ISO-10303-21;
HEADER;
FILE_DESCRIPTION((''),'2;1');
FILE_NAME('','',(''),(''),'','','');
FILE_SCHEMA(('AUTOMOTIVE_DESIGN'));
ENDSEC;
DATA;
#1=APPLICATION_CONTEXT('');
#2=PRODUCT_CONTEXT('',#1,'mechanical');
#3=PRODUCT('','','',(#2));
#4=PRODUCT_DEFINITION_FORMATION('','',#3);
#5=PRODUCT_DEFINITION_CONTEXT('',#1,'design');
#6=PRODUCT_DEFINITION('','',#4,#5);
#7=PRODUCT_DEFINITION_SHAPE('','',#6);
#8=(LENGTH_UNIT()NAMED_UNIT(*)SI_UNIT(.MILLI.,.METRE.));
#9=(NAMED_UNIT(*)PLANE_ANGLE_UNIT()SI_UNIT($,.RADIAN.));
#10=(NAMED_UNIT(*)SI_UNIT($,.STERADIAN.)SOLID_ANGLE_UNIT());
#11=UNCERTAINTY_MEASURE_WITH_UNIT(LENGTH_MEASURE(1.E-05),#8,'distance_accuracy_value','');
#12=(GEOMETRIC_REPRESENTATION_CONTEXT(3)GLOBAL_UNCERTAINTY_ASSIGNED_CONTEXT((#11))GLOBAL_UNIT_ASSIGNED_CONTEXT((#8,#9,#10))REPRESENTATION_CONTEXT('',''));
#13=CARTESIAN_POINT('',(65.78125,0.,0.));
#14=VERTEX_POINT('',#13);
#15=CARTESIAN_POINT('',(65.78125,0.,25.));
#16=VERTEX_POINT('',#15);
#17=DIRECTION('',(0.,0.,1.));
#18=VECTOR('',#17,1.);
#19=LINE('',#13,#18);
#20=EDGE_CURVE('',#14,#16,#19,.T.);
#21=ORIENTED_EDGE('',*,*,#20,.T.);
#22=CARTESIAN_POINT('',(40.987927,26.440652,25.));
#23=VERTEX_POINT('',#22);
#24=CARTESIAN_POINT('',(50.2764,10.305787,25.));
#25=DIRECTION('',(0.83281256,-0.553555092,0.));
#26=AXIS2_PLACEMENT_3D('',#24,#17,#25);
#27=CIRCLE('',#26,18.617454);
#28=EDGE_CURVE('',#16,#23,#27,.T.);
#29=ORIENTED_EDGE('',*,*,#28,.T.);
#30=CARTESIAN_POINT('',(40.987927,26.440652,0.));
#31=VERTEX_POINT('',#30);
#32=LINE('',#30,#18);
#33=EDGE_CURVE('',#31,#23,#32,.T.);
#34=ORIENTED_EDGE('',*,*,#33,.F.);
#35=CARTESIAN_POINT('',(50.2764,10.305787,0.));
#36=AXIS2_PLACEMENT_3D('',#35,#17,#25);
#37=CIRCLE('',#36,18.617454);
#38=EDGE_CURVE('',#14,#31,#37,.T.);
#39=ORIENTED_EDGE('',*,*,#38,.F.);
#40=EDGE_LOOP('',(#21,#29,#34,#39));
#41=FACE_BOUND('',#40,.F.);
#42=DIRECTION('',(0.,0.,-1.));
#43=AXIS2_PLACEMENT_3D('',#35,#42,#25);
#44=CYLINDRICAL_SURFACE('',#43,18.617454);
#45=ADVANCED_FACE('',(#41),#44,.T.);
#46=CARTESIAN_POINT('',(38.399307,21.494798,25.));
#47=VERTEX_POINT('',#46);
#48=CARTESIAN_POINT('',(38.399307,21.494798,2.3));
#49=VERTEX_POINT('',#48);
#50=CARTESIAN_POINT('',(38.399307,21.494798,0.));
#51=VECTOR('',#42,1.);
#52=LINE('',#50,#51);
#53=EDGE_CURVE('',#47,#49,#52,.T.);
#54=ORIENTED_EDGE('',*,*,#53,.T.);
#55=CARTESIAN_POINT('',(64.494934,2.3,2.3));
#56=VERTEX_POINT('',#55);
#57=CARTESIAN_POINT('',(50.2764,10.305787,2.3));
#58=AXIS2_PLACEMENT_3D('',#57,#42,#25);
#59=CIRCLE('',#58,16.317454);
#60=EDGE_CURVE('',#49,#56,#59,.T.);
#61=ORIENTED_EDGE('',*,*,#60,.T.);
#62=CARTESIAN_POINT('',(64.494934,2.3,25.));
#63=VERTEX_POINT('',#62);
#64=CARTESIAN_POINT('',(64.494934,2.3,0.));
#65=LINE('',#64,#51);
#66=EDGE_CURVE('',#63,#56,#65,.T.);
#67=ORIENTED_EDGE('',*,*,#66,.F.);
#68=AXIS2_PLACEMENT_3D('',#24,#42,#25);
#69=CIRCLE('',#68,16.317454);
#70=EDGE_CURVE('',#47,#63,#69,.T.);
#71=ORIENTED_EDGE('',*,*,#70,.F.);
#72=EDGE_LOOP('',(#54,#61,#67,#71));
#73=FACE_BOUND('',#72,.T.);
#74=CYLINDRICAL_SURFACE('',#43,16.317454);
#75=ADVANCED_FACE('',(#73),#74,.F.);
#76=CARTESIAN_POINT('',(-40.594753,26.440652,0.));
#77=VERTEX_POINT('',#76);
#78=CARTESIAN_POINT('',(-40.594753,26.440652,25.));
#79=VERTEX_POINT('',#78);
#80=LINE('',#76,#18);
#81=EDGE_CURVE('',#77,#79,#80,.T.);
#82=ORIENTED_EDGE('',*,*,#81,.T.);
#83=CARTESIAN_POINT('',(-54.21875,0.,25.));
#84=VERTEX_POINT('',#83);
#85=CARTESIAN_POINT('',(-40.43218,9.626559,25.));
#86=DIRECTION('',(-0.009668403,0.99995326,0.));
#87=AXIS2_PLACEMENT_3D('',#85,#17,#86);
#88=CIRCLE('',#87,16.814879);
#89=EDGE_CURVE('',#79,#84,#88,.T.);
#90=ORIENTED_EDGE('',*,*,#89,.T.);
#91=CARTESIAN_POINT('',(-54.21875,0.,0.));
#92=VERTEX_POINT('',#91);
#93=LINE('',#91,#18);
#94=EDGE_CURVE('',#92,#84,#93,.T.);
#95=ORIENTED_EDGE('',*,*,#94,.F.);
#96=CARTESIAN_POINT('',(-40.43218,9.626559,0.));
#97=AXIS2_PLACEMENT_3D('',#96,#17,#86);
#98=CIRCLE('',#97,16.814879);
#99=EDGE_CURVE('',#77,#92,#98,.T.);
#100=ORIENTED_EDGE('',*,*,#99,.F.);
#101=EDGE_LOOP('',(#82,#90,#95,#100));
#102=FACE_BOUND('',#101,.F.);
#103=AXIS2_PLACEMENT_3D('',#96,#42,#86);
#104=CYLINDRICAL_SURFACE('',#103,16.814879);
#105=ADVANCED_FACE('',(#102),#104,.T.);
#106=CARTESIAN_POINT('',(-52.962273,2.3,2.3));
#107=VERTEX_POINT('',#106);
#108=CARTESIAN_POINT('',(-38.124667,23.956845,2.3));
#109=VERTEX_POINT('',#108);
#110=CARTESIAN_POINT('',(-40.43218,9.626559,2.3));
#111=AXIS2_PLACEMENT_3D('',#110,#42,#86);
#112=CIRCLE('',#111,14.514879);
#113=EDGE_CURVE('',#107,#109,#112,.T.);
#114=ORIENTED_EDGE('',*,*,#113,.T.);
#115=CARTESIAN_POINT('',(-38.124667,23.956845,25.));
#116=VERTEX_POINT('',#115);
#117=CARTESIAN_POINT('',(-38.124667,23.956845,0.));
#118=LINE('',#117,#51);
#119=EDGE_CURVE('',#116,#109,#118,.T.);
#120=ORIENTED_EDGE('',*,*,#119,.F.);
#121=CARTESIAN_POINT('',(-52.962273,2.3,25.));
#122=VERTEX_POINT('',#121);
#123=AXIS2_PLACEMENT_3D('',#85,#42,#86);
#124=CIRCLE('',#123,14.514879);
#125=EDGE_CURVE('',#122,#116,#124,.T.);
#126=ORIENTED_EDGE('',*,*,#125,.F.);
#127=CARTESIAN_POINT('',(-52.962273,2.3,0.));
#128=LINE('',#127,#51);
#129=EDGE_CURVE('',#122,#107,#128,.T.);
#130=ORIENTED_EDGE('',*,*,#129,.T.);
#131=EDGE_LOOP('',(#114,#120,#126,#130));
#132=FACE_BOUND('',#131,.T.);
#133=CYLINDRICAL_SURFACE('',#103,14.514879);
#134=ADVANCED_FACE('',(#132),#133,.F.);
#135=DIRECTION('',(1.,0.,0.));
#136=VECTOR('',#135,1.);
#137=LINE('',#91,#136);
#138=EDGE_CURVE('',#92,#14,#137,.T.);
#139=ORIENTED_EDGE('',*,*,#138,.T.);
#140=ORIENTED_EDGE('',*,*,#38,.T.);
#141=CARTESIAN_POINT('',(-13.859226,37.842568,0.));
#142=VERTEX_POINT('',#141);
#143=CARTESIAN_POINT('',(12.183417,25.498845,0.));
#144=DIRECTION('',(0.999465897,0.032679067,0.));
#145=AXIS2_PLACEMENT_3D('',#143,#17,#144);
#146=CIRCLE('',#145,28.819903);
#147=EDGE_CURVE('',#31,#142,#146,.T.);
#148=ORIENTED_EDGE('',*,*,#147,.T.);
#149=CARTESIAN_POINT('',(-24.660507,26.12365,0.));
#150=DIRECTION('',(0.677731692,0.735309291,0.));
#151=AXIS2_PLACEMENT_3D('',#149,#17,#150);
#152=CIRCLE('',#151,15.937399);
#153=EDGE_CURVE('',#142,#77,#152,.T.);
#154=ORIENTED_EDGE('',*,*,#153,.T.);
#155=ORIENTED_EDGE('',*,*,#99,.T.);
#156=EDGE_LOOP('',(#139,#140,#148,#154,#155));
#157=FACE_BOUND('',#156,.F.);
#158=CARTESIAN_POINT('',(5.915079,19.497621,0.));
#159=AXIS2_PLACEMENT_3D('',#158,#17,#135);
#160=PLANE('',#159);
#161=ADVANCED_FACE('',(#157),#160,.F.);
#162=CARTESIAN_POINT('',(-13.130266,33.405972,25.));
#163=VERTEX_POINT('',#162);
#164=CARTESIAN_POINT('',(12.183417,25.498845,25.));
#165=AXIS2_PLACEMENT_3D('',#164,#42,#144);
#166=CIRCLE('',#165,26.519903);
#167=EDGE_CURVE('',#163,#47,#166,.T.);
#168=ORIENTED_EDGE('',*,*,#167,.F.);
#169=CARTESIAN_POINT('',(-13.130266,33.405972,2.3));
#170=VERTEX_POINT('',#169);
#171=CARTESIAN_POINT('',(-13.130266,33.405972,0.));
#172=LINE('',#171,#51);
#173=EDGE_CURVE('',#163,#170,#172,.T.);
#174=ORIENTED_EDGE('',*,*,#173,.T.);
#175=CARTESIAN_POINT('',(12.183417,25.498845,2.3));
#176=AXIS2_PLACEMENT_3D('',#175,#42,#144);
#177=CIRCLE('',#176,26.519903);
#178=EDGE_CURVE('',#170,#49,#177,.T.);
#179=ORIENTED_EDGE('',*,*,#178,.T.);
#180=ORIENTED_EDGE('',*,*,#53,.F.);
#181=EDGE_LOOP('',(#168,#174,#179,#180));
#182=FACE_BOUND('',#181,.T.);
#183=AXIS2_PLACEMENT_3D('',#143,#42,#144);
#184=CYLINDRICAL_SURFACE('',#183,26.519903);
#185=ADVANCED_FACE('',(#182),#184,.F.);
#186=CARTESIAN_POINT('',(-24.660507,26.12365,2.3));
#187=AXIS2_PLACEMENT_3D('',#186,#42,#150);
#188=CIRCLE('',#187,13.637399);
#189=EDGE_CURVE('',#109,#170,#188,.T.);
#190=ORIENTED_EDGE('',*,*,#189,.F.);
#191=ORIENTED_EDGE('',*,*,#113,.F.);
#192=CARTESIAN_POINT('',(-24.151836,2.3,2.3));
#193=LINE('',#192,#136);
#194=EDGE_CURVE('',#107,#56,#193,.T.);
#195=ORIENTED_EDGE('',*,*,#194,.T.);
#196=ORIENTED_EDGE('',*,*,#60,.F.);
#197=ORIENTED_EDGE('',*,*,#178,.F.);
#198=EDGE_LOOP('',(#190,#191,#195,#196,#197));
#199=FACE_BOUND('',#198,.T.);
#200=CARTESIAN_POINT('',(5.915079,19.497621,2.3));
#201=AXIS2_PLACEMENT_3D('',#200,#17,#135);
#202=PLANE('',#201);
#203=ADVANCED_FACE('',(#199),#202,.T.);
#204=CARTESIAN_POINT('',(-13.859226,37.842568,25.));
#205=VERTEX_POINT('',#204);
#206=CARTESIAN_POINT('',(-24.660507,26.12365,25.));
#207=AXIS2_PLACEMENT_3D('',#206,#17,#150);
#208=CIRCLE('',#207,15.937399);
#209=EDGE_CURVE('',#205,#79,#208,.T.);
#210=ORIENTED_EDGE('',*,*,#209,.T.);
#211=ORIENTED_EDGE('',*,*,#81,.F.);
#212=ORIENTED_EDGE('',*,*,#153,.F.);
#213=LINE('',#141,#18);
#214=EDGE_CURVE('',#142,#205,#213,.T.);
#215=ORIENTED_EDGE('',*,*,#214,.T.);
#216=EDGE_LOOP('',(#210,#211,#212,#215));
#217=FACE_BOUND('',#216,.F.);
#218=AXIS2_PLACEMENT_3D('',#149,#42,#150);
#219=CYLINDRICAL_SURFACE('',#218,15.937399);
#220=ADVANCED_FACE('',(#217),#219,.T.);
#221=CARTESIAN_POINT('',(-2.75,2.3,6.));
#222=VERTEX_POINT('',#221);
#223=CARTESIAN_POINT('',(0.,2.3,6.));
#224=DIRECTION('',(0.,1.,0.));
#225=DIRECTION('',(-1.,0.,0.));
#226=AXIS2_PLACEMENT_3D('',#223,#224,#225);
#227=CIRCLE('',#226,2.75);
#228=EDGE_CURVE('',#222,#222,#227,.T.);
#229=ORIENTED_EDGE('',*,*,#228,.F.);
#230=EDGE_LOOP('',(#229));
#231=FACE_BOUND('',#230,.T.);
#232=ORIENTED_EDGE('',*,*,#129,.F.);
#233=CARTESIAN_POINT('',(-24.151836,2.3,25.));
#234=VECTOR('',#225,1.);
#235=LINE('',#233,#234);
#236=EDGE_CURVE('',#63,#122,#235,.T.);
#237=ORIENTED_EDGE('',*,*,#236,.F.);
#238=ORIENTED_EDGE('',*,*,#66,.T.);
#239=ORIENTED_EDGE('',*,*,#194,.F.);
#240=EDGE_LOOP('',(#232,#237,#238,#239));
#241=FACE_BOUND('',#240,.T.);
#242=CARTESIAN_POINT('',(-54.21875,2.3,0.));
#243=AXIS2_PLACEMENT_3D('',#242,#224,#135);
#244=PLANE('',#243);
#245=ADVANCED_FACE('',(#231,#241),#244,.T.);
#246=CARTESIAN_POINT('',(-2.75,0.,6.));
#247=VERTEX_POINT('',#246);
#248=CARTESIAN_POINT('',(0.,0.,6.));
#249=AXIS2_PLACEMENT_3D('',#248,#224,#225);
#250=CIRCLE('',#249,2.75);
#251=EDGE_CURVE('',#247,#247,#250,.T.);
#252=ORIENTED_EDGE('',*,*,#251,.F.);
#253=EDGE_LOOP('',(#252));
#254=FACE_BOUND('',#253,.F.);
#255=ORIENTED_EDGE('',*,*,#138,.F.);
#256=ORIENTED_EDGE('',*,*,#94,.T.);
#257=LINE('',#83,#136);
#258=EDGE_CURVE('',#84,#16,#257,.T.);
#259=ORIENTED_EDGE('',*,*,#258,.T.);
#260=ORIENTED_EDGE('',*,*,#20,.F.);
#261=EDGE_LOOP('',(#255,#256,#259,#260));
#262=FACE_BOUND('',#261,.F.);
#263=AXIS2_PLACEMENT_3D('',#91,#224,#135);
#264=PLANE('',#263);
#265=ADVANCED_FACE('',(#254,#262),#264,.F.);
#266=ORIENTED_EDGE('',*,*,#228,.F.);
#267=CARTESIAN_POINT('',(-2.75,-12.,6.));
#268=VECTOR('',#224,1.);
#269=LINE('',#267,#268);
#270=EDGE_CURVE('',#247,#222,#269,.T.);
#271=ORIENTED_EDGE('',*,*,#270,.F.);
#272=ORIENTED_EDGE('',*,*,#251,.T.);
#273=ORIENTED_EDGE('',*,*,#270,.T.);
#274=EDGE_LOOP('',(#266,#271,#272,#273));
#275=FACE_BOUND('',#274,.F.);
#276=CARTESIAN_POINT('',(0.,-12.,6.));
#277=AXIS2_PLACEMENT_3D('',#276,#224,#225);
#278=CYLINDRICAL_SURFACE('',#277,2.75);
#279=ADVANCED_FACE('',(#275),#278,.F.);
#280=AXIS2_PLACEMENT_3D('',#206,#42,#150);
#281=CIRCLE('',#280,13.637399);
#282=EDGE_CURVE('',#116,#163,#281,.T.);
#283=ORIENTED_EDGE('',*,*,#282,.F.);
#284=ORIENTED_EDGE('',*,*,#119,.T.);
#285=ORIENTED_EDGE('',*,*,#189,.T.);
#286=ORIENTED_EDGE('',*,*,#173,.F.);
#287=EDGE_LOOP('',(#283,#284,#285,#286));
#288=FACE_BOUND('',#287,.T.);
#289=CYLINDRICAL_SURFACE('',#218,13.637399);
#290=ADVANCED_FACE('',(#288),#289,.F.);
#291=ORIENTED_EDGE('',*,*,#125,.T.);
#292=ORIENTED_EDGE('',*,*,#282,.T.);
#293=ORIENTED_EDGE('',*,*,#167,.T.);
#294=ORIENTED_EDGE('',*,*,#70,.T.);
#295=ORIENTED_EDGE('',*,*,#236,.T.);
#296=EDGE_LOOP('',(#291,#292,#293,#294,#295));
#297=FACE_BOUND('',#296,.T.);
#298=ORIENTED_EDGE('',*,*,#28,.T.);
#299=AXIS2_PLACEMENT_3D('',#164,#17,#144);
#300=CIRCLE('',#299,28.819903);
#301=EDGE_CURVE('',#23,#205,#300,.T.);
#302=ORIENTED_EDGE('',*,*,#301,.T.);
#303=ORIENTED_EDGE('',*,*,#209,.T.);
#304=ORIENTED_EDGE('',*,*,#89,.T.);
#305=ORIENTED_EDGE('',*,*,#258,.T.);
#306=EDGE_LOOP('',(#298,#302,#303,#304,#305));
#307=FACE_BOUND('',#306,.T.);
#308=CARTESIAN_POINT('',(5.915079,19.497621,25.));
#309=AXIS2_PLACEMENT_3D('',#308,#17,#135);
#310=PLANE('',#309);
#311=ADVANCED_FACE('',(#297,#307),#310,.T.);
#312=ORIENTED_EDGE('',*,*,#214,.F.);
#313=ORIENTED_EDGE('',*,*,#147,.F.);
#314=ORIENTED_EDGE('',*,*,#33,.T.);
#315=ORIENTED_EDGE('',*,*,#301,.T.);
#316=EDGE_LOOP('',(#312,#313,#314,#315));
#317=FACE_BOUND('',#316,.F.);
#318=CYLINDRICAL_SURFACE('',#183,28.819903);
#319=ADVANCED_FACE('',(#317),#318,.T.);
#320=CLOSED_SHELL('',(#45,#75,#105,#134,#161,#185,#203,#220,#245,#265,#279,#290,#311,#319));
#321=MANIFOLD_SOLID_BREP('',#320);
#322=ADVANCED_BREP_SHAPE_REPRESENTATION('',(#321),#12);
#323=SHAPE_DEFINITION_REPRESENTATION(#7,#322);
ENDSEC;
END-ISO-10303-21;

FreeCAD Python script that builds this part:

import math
import FreeCAD as App
import Part
import Sketcher
from FreeCAD import Vector


def faces_at(feature, points):
    """Names of the faces that lie closest to the given points."""
    faces = feature.Shape.Faces
    near = lambda p: min(range(len(faces)), key=lambda i: faces[i].distToShape(Part.Vertex(*p))[0])
    return sorted({f"Face{near(p) + 1}" for p in points})

doc = App.newDocument("Part")
body = doc.addObject("PartDesign::Body", "Body")

# Sketch on XY plane
sketch1 = body.newObject("Sketcher::SketchObject", "Sketch")
sketch1.AttachmentSupport = (doc.getObject("XY_Plane"), [""])
sketch1.MapMode = "FlatFace"
sketch1.addGeometry(Part.ArcOfCircle(Part.Circle(Vector(-40.43218, 9.626559, 0), Vector(0, 0, 1), 16.814879), math.radians(90.553967), math.radians(214.924913)), False)
sketch1.addGeometry(Part.LineSegment(Vector(-54.21875, 0, 0), Vector(65.78125, 0, 0)), False)
sketch1.addGeometry(Part.ArcOfCircle(Part.Circle(Vector(50.2764, 10.305787, 0), Vector(0, 0, 1), 18.617454), math.radians(-33.611251), math.radians(119.92805)), False)
sketch1.addGeometry(Part.ArcOfCircle(Part.Circle(Vector(12.183417, 25.498845, 0), Vector(0, 0, 1), 28.819903), math.radians(1.872706), math.radians(154.639928)), False)
sketch1.addGeometry(Part.ArcOfCircle(Part.Circle(Vector(-24.660507, 26.12365, 0), Vector(0, 0, 1), 15.937399), math.radians(47.333357), math.radians(178.860287)), False)
sketch1.addConstraint(Sketcher.Constraint("Coincident", 0, 2, 1, 1))
sketch1.addConstraint(Sketcher.Constraint("Coincident", 1, 2, 2, 1))
sketch1.addConstraint(Sketcher.Constraint("Coincident", 2, 2, 3, 1))
sketch1.addConstraint(Sketcher.Constraint("Coincident", 3, 2, 4, 1))
sketch1.addConstraint(Sketcher.Constraint("Coincident", 4, 2, 0, 1))
sketch1.addConstraint(Sketcher.Constraint("Horizontal", 1))
sketch1.addConstraint(Sketcher.Constraint("PointOnObject", 0, 2, -1))
sketch1.addConstraint(Sketcher.Constraint("Horizontal", 2, 2, 4, 2))
sketch1.addConstraint(Sketcher.Constraint("DistanceX", 1, 1, 1, 2, 120.0))
sketch1.addConstraint(Sketcher.Constraint("Radius", 4, 15.937399))
sketch1.addConstraint(Sketcher.Constraint("Radius", 0, 16.814879))
sketch1.addConstraint(Sketcher.Constraint("Radius", 2, 18.617454))
sketch1.addConstraint(Sketcher.Constraint("Radius", 3, 28.819903))
sketch1.addConstraint(Sketcher.Constraint("DistanceY", 4, 3, 2, 2, 0.317002))
sketch1.addConstraint(Sketcher.Constraint("DistanceX", -1, 1, 2, 3, 50.2764))
sketch1.addConstraint(Sketcher.Constraint("DistanceX", 0, 3, -1, 1, 40.43218))
sketch1.addConstraint(Sketcher.Constraint("DistanceY", -1, 1, 0, 3, 9.626559))
sketch1.addConstraint(Sketcher.Constraint("DistanceY", -1, 1, 4, 3, 26.12365))
sketch1.addConstraint(Sketcher.Constraint("DistanceY", -1, 1, 3, 2, 37.842568))
pad1 = body.newObject("PartDesign::Pad", "Pad")
pad1.Profile = sketch1
pad1.Length = 25
doc.recompute()

thickness = body.newObject("PartDesign::Thickness", "Thickness")
thickness.Base = (pad1, faces_at(pad1, [(5.823, 27.159, 25)]))
thickness.Value = 2.3
thickness.Reversed = True
thickness.Join = "Intersection"

# Sketch on XZ plane
sketch2 = body.newObject("Sketcher::SketchObject", "Sketch001")
sketch2.AttachmentSupport = (doc.getObject("XZ_Plane"), [""])
sketch2.MapMode = "FlatFace"
sketch2.addGeometry(Part.Circle(Vector(0, 6, 0), Vector(0, 0, 1), 2.75), False)
sketch2.addConstraint(Sketcher.Constraint("PointOnObject", 0, 3, -2))
sketch2.addConstraint(Sketcher.Constraint("Diameter", 0, 5.5))
sketch2.addConstraint(Sketcher.Constraint("DistanceY", -1, 1, 0, 3, 6.0))
doc.recompute()
hole = body.newObject("PartDesign::Hole", "Hole")
hole.Profile = sketch2
hole.ThreadType = "None"
hole.Diameter = 5.5
hole.DepthType = "Dimension"
hole.Depth = 12
hole.DrillPoint = "Angled"
hole.DrillPointAngle = 118

doc.recompute()
